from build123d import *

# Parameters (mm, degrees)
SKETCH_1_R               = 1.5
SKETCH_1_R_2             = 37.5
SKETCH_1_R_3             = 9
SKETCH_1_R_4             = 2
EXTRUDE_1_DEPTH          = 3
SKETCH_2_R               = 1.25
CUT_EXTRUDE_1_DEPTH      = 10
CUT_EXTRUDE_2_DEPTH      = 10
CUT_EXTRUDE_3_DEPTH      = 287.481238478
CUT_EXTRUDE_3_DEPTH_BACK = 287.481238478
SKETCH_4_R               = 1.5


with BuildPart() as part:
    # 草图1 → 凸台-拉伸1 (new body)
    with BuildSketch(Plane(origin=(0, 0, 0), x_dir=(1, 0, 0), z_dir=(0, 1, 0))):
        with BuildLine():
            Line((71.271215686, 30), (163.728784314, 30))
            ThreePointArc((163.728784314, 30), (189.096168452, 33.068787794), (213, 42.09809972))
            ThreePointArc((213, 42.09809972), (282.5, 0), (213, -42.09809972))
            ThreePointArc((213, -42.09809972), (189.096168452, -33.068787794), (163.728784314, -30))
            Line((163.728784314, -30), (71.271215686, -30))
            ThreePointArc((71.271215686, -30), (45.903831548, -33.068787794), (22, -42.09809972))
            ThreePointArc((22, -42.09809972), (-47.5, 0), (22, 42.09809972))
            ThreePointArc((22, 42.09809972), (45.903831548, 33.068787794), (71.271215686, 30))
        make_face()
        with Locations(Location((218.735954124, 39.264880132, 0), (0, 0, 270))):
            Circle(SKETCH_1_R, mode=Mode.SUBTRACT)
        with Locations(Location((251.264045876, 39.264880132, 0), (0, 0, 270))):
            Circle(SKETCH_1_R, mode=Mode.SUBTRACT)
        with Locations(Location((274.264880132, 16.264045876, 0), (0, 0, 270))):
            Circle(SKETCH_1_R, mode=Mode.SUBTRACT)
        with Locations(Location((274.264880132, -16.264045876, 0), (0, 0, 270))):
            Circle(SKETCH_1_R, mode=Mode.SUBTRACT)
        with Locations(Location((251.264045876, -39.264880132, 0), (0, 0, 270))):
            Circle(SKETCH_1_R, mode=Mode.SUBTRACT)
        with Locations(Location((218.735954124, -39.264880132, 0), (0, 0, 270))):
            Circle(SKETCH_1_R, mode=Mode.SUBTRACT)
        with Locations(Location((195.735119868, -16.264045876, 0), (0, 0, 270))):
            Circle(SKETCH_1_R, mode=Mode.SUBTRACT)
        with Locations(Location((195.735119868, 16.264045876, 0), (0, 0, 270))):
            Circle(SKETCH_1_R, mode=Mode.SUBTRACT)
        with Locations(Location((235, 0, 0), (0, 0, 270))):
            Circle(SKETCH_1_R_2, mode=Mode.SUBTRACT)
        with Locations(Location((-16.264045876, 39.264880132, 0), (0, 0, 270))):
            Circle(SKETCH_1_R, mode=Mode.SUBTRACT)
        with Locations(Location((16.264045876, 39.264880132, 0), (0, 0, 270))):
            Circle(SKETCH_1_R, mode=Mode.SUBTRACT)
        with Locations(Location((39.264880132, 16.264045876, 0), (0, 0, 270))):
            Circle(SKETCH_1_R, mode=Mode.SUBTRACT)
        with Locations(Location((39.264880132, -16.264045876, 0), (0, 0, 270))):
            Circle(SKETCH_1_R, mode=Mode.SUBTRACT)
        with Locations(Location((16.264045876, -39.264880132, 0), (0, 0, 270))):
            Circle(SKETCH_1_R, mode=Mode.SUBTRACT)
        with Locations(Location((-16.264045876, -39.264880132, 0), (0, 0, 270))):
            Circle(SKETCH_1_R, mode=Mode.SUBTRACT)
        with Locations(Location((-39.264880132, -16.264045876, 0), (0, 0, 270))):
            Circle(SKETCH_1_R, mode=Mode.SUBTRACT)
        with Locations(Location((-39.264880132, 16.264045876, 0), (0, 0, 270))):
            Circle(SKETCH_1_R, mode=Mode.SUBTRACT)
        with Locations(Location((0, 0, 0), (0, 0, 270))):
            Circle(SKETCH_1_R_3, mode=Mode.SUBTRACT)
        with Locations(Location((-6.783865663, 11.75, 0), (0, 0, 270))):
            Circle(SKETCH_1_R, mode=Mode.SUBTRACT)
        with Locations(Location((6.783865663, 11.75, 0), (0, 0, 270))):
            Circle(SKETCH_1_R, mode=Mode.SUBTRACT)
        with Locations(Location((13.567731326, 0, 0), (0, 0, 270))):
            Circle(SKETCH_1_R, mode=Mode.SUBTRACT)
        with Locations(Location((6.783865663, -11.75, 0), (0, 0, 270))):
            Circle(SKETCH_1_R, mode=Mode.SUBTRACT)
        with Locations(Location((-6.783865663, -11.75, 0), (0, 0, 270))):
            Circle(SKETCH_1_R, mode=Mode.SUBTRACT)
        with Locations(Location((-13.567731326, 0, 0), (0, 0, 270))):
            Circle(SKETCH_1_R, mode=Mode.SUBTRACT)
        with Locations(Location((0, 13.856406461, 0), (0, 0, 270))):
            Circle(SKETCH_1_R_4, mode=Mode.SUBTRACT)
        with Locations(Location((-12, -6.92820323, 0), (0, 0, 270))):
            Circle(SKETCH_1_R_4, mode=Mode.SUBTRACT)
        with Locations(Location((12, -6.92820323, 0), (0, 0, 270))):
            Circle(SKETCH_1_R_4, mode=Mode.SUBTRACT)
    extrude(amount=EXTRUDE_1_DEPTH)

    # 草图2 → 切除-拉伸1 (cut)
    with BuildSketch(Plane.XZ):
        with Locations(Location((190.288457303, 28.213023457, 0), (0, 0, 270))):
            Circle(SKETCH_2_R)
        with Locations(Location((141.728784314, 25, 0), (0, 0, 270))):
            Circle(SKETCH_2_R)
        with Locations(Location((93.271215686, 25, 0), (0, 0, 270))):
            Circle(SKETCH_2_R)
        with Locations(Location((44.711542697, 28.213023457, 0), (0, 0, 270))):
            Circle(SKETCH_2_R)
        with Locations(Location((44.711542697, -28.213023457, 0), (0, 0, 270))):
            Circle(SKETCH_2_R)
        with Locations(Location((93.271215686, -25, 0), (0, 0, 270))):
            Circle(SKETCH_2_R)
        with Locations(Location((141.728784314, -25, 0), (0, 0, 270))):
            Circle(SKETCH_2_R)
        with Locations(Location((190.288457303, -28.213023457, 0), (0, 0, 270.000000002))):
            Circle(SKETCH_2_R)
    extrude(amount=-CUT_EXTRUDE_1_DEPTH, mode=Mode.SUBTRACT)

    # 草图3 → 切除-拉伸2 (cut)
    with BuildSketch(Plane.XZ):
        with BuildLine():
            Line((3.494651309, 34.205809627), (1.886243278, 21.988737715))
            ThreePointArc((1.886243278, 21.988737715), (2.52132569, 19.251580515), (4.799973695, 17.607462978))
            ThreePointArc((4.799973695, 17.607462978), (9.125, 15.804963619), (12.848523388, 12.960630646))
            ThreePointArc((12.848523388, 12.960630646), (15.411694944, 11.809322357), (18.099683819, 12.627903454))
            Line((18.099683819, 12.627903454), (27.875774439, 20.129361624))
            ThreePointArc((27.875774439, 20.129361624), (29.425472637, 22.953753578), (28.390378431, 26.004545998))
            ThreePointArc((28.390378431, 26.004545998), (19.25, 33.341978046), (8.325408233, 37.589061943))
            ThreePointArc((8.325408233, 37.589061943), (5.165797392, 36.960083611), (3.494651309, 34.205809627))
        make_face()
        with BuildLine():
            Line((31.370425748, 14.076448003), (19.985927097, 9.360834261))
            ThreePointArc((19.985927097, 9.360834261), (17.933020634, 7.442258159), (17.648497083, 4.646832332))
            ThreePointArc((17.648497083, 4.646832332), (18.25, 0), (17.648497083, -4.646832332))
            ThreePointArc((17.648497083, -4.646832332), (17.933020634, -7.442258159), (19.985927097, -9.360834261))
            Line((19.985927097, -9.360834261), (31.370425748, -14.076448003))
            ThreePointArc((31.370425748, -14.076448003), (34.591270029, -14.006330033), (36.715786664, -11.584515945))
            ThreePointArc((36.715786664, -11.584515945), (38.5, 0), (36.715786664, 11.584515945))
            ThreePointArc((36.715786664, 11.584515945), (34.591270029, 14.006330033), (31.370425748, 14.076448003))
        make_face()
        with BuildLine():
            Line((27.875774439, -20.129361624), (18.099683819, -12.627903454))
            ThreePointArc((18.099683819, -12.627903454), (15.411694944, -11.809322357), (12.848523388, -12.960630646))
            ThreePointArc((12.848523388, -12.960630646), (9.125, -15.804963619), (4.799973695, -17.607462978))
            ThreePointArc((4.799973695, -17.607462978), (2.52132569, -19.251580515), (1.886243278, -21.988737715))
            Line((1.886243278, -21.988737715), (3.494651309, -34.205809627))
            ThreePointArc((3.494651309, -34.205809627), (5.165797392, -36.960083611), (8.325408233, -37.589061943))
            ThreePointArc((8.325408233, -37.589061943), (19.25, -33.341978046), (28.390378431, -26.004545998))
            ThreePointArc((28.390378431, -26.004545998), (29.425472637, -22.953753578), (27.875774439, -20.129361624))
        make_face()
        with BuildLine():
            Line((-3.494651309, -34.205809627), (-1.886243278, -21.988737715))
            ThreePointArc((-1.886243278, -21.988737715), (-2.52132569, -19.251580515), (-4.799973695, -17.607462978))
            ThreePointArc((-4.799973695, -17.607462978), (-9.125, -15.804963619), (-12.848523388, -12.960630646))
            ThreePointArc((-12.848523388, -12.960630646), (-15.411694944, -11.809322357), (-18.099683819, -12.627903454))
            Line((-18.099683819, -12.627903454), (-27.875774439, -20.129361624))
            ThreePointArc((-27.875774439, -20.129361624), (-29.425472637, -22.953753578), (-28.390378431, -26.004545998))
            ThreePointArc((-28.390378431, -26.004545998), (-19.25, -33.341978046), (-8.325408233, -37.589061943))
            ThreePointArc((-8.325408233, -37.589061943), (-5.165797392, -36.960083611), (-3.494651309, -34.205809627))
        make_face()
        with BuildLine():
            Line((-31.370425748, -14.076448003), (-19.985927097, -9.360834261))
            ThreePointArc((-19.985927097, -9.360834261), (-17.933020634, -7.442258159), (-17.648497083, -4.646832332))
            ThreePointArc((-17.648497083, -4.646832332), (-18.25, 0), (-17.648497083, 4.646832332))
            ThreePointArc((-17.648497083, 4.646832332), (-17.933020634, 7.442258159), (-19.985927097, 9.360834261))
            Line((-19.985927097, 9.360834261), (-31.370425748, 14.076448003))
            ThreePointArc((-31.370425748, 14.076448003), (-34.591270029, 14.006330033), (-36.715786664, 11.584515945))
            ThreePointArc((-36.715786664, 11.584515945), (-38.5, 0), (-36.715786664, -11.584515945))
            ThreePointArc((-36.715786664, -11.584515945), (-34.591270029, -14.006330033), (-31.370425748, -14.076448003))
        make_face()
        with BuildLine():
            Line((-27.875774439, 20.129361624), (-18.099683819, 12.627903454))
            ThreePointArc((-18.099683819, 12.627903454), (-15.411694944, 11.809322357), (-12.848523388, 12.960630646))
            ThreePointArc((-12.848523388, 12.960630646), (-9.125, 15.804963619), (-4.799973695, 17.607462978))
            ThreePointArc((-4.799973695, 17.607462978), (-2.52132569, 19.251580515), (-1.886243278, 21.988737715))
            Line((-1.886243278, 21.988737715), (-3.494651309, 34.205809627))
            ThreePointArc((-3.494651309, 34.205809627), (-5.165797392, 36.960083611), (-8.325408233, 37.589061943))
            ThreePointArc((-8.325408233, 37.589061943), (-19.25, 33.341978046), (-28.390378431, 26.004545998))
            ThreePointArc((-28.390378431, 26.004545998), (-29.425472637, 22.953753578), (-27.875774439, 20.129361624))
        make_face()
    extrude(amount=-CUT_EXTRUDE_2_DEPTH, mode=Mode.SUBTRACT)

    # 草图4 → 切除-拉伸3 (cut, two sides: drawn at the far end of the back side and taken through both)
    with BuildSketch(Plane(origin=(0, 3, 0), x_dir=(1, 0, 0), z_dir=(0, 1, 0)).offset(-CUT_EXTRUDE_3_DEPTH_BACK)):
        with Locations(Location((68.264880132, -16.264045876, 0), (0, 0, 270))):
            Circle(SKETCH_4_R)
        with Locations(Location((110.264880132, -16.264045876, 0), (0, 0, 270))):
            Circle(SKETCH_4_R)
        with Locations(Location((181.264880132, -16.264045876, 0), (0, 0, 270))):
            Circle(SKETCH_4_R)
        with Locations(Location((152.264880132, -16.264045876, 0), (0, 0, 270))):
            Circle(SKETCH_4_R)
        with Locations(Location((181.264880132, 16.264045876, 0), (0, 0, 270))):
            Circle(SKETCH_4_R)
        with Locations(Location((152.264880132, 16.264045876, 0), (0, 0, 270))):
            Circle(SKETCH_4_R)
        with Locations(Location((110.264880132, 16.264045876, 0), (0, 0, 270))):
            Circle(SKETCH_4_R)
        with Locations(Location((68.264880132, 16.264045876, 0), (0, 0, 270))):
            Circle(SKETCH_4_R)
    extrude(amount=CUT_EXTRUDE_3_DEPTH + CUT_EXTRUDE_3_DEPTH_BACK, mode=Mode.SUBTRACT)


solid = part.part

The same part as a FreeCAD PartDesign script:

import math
import FreeCAD as App
import Part
import Sketcher

V = App.Vector
Q = App.Units.Quantity

doc = App.newDocument("Part")
body = doc.addObject("PartDesign::Body", "Body")

# Sketch on XZ plane
sketch1 = body.newObject("Sketcher::SketchObject", "Sketch")
sketch1.AttachmentSupport = (doc.getObject("XZ_Plane"), [""])
sketch1.MapMode = "FlatFace"
sketch1.addGeometry([
    Part.LineSegment(V(163.728784, -30, 0), V(71.271216, -30, 0)),  # 0
    Part.ArcOfCircle(Part.Circle(V(71.271216, -136.381034, 0), V(0, 0, 1), 106.381034), math.radians(90), math.radians(117.591069)),  # 1
    Part.ArcOfCircle(Part.Circle(V(0, 0, 0), V(0, 0, 1), 47.5), math.radians(62.408931), math.radians(297.591069)),  # 2
    Part.ArcOfCircle(Part.Circle(V(71.271216, 136.381034, 0), V(0, 0, 1), 106.381034), math.radians(-117.591069), math.radians(-90)),  # 3
    Part.LineSegment(V(71.271216, 30, 0), V(163.728784, 30, 0)),  # 4
    Part.ArcOfCircle(Part.Circle(V(163.728784, 136.381034, 0), V(0, 0, 1), 106.381034), math.radians(-90), math.radians(-62.408931)),  # 5
    Part.ArcOfCircle(Part.Circle(V(235, 0, 0), V(0, 0, 1), 47.5), math.radians(-117.591069), math.radians(117.591069)),  # 6
    Part.ArcOfCircle(Part.Circle(V(163.728784, -136.381034, 0), V(0, 0, 1), 106.381034), math.radians(62.408931), math.radians(90)),  # 7
    Part.Circle(V(251.264046, 39.26488, 0), V(0, 0, 1), 1.5),  # 8
    Part.Circle(V(218.735954, 39.26488, 0), V(0, 0, 1), 1.5),  # 9
    Part.Circle(V(274.26488, 16.264046, 0), V(0, 0, 1), 1.5),  # 10
    Part.Circle(V(195.73512, 16.264046, 0), V(0, 0, 1), 1.5),  # 11
    Part.Circle(V(16.264046, 39.26488, 0), V(0, 0, 1), 1.5),  # 12
    Part.Circle(V(-16.264046, 39.26488, 0), V(0, 0, 1), 1.5),  # 13
    Part.Circle(V(39.26488, 16.264046, 0), V(0, 0, 1), 1.5),  # 14
    Part.Circle(V(6.783866, 11.75, 0), V(0, 0, 1), 1.5),  # 15
    Part.Circle(V(-39.26488, 16.264046, 0), V(0, 0, 1), 1.5),  # 16
    Part.Circle(V(-6.783866, 11.75, 0), V(0, 0, 1), 1.5),  # 17
    Part.Circle(V(12, 6.928203, 0), V(0, 0, 1), 2),  # 18
    Part.Circle(V(-12, 6.928203, 0), V(0, 0, 1), 2),  # 19
    Part.Circle(V(235, 0, 0), V(0, 0, 1), 37.5),  # 20
    Part.Circle(V(274.26488, -16.264046, 0), V(0, 0, 1), 1.5),  # 21
    Part.Circle(V(195.73512, -16.264046, 0), V(0, 0, 1), 1.5),  # 22
    Part.Circle(V(251.264046, -39.26488, 0), V(0, 0, 1), 1.5),  # 23
    Part.Circle(V(218.735954, -39.26488, 0), V(0, 0, 1), 1.5),  # 24
    Part.Circle(V(39.26488, -16.264046, 0), V(0, 0, 1), 1.5),  # 25
    Part.Circle(V(13.567731, 0, 0), V(0, 0, 1), 1.5),  # 26
    Part.Circle(V(0, 0, 0), V(0, 0, 1), 9),  # 27
    Part.Circle(V(-13.567731, 0, 0), V(0, 0, 1), 1.5),  # 28
    Part.Circle(V(6.783866, -11.75, 0), V(0, 0, 1), 1.5),  # 29
    Part.Circle(V(0, -13.856406, 0), V(0, 0, 1), 2),  # 30
    Part.Circle(V(-6.783866, -11.75, 0), V(0, 0, 1), 1.5),  # 31
    Part.Circle(V(-39.26488, -16.264046, 0), V(0, 0, 1), 1.5),  # 32
    Part.Circle(V(16.264046, -39.26488, 0), V(0, 0, 1), 1.5),  # 33
    Part.Circle(V(-16.264046, -39.26488, 0), V(0, 0, 1), 1.5),  # 34
], False)
sketch1.addConstraint([
    Sketcher.Constraint("Tangent", 0, 2, 1, 1),
    Sketcher.Constraint("Tangent", 1, 2, 2, 2),
    Sketcher.Constraint("Tangent", 2, 1, 3, 1),
    Sketcher.Constraint("Tangent", 3, 2, 4, 1),
    Sketcher.Constraint("Tangent", 4, 2, 5, 1),
    Sketcher.Constraint("Tangent", 5, 2, 6, 2),
    Sketcher.Constraint("Tangent", 6, 1, 7, 1),
    Sketcher.Constraint("Tangent", 7, 2, 0, 1),
    Sketcher.Constraint("Horizontal", 0),
    Sketcher.Constraint("Horizontal", 4),
    Sketcher.Constraint("Coincident", 2, 3, -1, 1),
    Sketcher.Constraint("Coincident", 27, 3, -1, 1),
    Sketcher.Constraint("Coincident", 20, 3, 6, 3),
    Sketcher.Constraint("Equal", 1, 3),
    Sketcher.Constraint("Equal", 3, 5),
    Sketcher.Constraint("Equal", 2, 6),
    Sketcher.Constraint("Equal", 5, 7),
    Sketcher.Constraint("Equal", 8, 9),
    Sketcher.Constraint("Equal", 9, 10),
    Sketcher.Constraint("Equal", 10, 11),
    Sketcher.Constraint("Equal", 11, 12),
    Sketcher.Constraint("Equal", 12, 13),
    Sketcher.Constraint("Equal", 13, 14),
    Sketcher.Constraint("Equal", 14, 15),
    Sketcher.Constraint("Equal", 15, 16),
    Sketcher.Constraint("Equal", 16, 17),
    Sketcher.Constraint("Equal", 18, 19),
    Sketcher.Constraint("Equal", 17, 21),
    Sketcher.Constraint("Equal", 21, 22),
    Sketcher.Constraint("Equal", 22, 23),
    Sketcher.Constraint("Equal", 23, 24),
    Sketcher.Constraint("Equal", 24, 25),
    Sketcher.Constraint("Equal", 25, 26),
    Sketcher.Constraint("Equal", 26, 28),
    Sketcher.Constraint("Equal", 28, 29),
    Sketcher.Constraint("Equal", 19, 30),
    Sketcher.Constraint("Equal", 29, 31),
    Sketcher.Constraint("Equal", 31, 32),
    Sketcher.Constraint("Equal", 32, 33),
    Sketcher.Constraint("Equal", 33, 34),
    Sketcher.Constraint("Symmetric", 16, 3, 25, 3, -1, 1),
    Sketcher.Constraint("Symmetric", 26, 3, 28, 3, -1, 1),
    Sketcher.Constraint("Symmetric", 17, 3, 29, 3, -1, 1),
    Sketcher.Constraint("Symmetric", 15, 3, 31, 3, -1, 1),
    Sketcher.Constraint("Symmetric", 14, 3, 32, 3, -1, 1),
    Sketcher.Constraint("Symmetric", 13, 3, 33, 3, -1, 1),
    Sketcher.Constraint("Symmetric", 12, 3, 34, 3, -1, 1),
    Sketcher.Constraint("Symmetric", 12, 3, 13, 3, -2),
    Sketcher.Constraint("Symmetric", 14, 3, 16, 3, -2),
    Sketcher.Constraint("Symmetric", 15, 3, 17, 3, -2),
    Sketcher.Constraint("Symmetric", 18, 3, 19, 3, -2),
    Sketcher.Constraint("Symmetric", 5, 3, 7, 3, -1),
    Sketcher.Constraint("Symmetric", 10, 3, 21, 3, -1),
    Sketcher.Constraint("Symmetric", 11, 3, 22, 3, -1),
    Sketcher.Constraint("Symmetric", 8, 3, 23, 3, -1),
    Sketcher.Constraint("Symmetric", 9, 3, 24, 3, -1),
    Sketcher.Constraint("PointOnObject", 26, 3, -1),
    Sketcher.Constraint("PointOnObject", 30, 3, -2),
    Sketcher.Constraint("Horizontal", 8, 3, 9, 3),
    Sketcher.Constraint("Horizontal", 10, 3, 11, 3),
    Sketcher.Constraint("Horizontal", 9, 3, 12, 3),
    Sketcher.Constraint("Horizontal", 11, 3, 14, 3),
    Sketcher.Constraint("Diameter", 8, Q("3 mm")),
    Sketcher.Constraint("Diameter", 18, Q("4 mm")),
    Sketcher.Constraint("Diameter", 20, Q("75 mm")),
    Sketcher.Constraint("Diameter", 27, Q("18 mm")),
    Sketcher.Constraint("Radius", 2, Q("47.5 mm")),
    Sketcher.Constraint("DistanceX", -1, 1, 6, 3, Q("235 mm")),
    Sketcher.Constraint("DistanceX", -1, 1, 18, 3, Q("12 mm")),
    Sketcher.Constraint("DistanceY", 0, 2, -1, 1, Q("30 mm")),
    Sketcher.Constraint("DistanceY", 29, 3, 15, 3, Q("23.5 mm")),
    Sketcher.Constraint("Radius", 1, Q("106.381034 mm")),
    Sketcher.Constraint("DistanceY", -1, 1, 8, 3, Q("39.26488 mm")),
    Sketcher.Constraint("DistanceX", -1, 1, 10, 3, Q("274.26488 mm")),
    Sketcher.Constraint("DistanceX", -1, 1, 11, 3, Q("195.73512 mm")),
    Sketcher.Constraint("DistanceX", -1, 1, 14, 3, Q("39.26488 mm")),
    Sketcher.Constraint("DistanceX", -1, 1, 26, 3, Q("13.567731 mm")),
    Sketcher.Constraint("DistanceX", 5, 3, 8, 3, Q("87.535262 mm")),
    Sketcher.Constraint("DistanceX", 9, 3, 8, 3, Q("32.528092 mm")),
    Sketcher.Constraint("DistanceY", 7, 3, 10, 3, Q("152.64508 mm")),
    Sketcher.Constraint("DistanceX", 12, 3, 3, 3, Q("55.00717 mm")),
    Sketcher.Constraint("DistanceX", 15, 3, 12, 3, Q("9.48018 mm")),
    Sketcher.Constraint("DistanceY", 25, 3, 18, 3, Q("23.192249 mm")),
    Sketcher.Constraint("DistanceY", 32, 3, 30, 3, Q("2.407639 mm")),
])
pad1 = body.newObject("PartDesign::Pad", "Pad")
pad1.Profile = sketch1
pad1.Length = 3
pad1.Reversed = True

# Sketch on XZ plane
sketch2 = body.newObject("Sketcher::SketchObject", "Sketch001")
sketch2.AttachmentSupport = (doc.getObject("XZ_Plane"), [""])
sketch2.MapMode = "FlatFace"
sketch2.addGeometry([
    Part.Circle(V(190.288457, 28.213023, 0), V(0, 0, 1), 1.25),  # 0
    Part.Circle(V(141.728784, 25, 0), V(0, 0, 1), 1.25),  # 1
    Part.Circle(V(93.271216, 25, 0), V(0, 0, 1), 1.25),  # 2
    Part.Circle(V(44.711543, 28.213023, 0), V(0, 0, 1), 1.25),  # 3
    Part.Circle(V(44.711543, -28.213023, 0), V(0, 0, 1), 1.25),  # 4
    Part.Circle(V(93.271216, -25, 0), V(0, 0, 1), 1.25),  # 5
    Part.Circle(V(141.728784, -25, 0), V(0, 0, 1), 1.25),  # 6
    Part.Circle(V(190.288457, -28.213023, 0), V(0, 0, 1), 1.25),  # 7
], False)
sketch2.addConstraint([
    Sketcher.Constraint("Equal", 0, 1),
    Sketcher.Constraint("Equal", 1, 2),
    Sketcher.Constraint("Equal", 2, 3),
    Sketcher.Constraint("Equal", 3, 4),
    Sketcher.Constraint("Equal", 4, 5),
    Sketcher.Constraint("Equal", 5, 6),
    Sketcher.Constraint("Equal", 6, 7),
    Sketcher.Constraint("Symmetric", 3, 3, 4, 3, -1),
    Sketcher.Constraint("Symmetric", 2, 3, 5, 3, -1),
    Sketcher.Constraint("Symmetric", 1, 3, 6, 3, -1),
    Sketcher.Constraint("Symmetric", 0, 3, 7, 3, -1),
    Sketcher.Constraint("Horizontal", 1, 3, 2, 3),
    Sketcher.Constraint("Horizontal", 0, 3, 3, 3),
    Sketcher.Constraint("Diameter", 0, Q("2.5 mm")),
    Sketcher.Constraint("DistanceY", -1, 1, 1, 3, Q("25 mm")),
    Sketcher.Constraint("DistanceX", 2, 3, 1, 3, Q("48.457569 mm")),
    Sketcher.Constraint("DistanceX", 2, 3, 0, 3, Q("97.017242 mm")),
    Sketcher.Constraint("DistanceX", 3, 3, 1, 3, Q("97.017242 mm")),
    Sketcher.Constraint("DistanceX", -1, 1, 0, 3, Q("190.288457 mm")),
    Sketcher.Constraint("DistanceY", -1, 1, 0, 3, Q("28.213023 mm")),
])
pocket1 = body.newObject("PartDesign::Pocket", "Pocket")
pocket1.Profile = sketch2
pocket1.Length = 10

# Sketch on XZ plane
sketch3 = body.newObject("Sketcher::SketchObject", "Sketch002")
sketch3.AttachmentSupport = (doc.getObject("XZ_Plane"), [""])
sketch3.MapMode = "FlatFace"
sketch3.addGeometry([
    Part.LineSegment(V(3.494651, 34.20581, 0), V(1.886243, 21.988738, 0)),  # 0
    Part.ArcOfCircle(Part.Circle(V(5.852023, 21.466633, 0), V(0, 0, 1), 4), math.radians(172.5), math.radians(254.751126)),  # 1
    Part.ArcOfCircle(Part.Circle(V(0, 0, 0), V(0, 0, 1), 18.25), math.radians(45.248874), math.radians(74.751126)),  # 2
    Part.ArcOfCircle(Part.Circle(V(15.664638, 15.801317, 0), V(0, 0, 1), 4), math.radians(-134.751126), math.radians(-52.5)),  # 3
    Part.LineSegment(V(18.099684, 12.627903, 0), V(27.875774, 20.129362, 0)),  # 4
    Part.ArcOfCircle(Part.Circle(V(25.440729, 23.302775, 0), V(0, 0, 1), 4), math.radians(-52.5), math.radians(42.488542)),  # 5
    Part.ArcOfCircle(Part.Circle(V(0, 0, 0), V(0, 0, 1), 38.5), math.radians(42.488542), math.radians(77.511458)),  # 6
    Part.ArcOfCircle(Part.Circle(V(7.460431, 33.683705, 0), V(0, 0, 1), 4), math.radians(77.511458), math.radians(172.5)),  # 7
    Part.LineSegment(V(31.370426, 14.076448, 0), V(19.985927, 9.360834, 0)),  # 8
    Part.ArcOfCircle(Part.Circle(V(21.516661, 5.665316, 0), V(0, 0, 1), 4), math.radians(112.5), math.radians(194.751126)),  # 9
    Part.ArcOfCircle(Part.Circle(V(0, 0, 0), V(0, 0, 1), 18.25), math.radians(-14.751126), math.radians(14.751126)),  # 10
    Part.ArcOfCircle(Part.Circle(V(21.516661, -5.665316, 0), V(0, 0, 1), 4), math.radians(165.248874), math.radians(247.5)),  # 11
    Part.LineSegment(V(19.985927, -9.360834, 0), V(31.370426, -14.076448, 0)),  # 12
    Part.ArcOfCircle(Part.Circle(V(32.901159, -10.38093, 0), V(0, 0, 1), 4), math.radians(-112.5), math.radians(-17.511458)),  # 13
    Part.ArcOfCircle(Part.Circle(V(0, 0, 0), V(0, 0, 1), 38.5), math.radians(-17.511458), math.radians(17.511458)),  # 14
    Part.ArcOfCircle(Part.Circle(V(32.901159, 10.38093, 0), V(0, 0, 1), 4), math.radians(17.511458), math.radians(112.5)),  # 15
    Part.LineSegment(V(27.875774, -20.129362, 0), V(18.099684, -12.627903, 0)),  # 16
    Part.ArcOfCircle(Part.Circle(V(15.664638, -15.801317, 0), V(0, 0, 1), 4), math.radians(52.5), math.radians(134.751126)),  # 17
    Part.ArcOfCircle(Part.Circle(V(0, 0, 0), V(0, 0, 1), 18.25), math.radians(-74.751126), math.radians(-45.248874)),  # 18
    Part.ArcOfCircle(Part.Circle(V(5.852023, -21.466633, 0), V(0, 0, 1), 4), math.radians(105.248874), math.radians(187.5)),  # 19
    Part.LineSegment(V(1.886243, -21.988738, 0), V(3.494651, -34.20581, 0)),  # 20
    Part.ArcOfCircle(Part.Circle(V(7.460431, -33.683705, 0), V(0, 0, 1), 4), math.radians(-172.5), math.radians(-77.511458)),  # 21
    Part.ArcOfCircle(Part.Circle(V(0, 0, 0), V(0, 0, 1), 38.5), math.radians(-77.511458), math.radians(-42.488542)),  # 22
    Part.ArcOfCircle(Part.Circle(V(25.440729, -23.302775, 0), V(0, 0, 1), 4), math.radians(-42.488542), math.radians(52.5)),  # 23
    Part.LineSegment(V(-3.494651, -34.20581, 0), V(-1.886243, -21.988738, 0)),  # 24
    Part.ArcOfCircle(Part.Circle(V(-5.852023, -21.466633, 0), V(0, 0, 1), 4), math.radians(-7.5), math.radians(74.751126)),  # 25
    Part.ArcOfCircle(Part.Circle(V(0, 0, 0), V(0, 0, 1), 18.25), math.radians(-134.751126), math.radians(-105.248874)),  # 26
    Part.ArcOfCircle(Part.Circle(V(-15.664638, -15.801317, 0), V(0, 0, 1), 4), math.radians(45.248874), math.radians(127.5)),  # 27
    Part.LineSegment(V(-18.099684, -12.627903, 0), V(-27.875774, -20.129362, 0)),  # 28
    Part.ArcOfCircle(Part.Circle(V(-25.440729, -23.302775, 0), V(0, 0, 1), 4), math.radians(127.5), math.radians(222.488542)),  # 29
    Part.ArcOfCircle(Part.Circle(V(0, 0, 0), V(0, 0, 1), 38.5), math.radians(-137.511458), math.radians(-102.488542)),  # 30
    Part.ArcOfCircle(Part.Circle(V(-7.460431, -33.683705, 0), V(0, 0, 1), 4), math.radians(-102.488542), math.radians(-7.5)),  # 31
    Part.LineSegment(V(-31.370426, -14.076448, 0), V(-19.985927, -9.360834, 0)),  # 32
    Part.ArcOfCircle(Part.Circle(V(-21.516661, -5.665316, 0), V(0, 0, 1), 4), math.radians(-67.5), math.radians(14.751126)),  # 33
    Part.ArcOfCircle(Part.Circle(V(0, 0, 0), V(0, 0, 1), 18.25), math.radians(165.248874), math.radians(194.751126)),  # 34
    Part.ArcOfCircle(Part.Circle(V(-21.516661, 5.665316, 0), V(0, 0, 1), 4), math.radians(-14.751126), math.radians(67.5)),  # 35
    Part.LineSegment(V(-19.985927, 9.360834, 0), V(-31.370426, 14.076448, 0)),  # 36
    Part.ArcOfCircle(Part.Circle(V(-32.901159, 10.38093, 0), V(0, 0, 1), 4), math.radians(67.5), math.radians(162.488542)),  # 37
    Part.ArcOfCircle(Part.Circle(V(0, 0, 0), V(0, 0, 1), 38.5), math.radians(162.488542), math.radians(197.511458)),  # 38
    Part.ArcOfCircle(Part.Circle(V(-32.901159, -10.38093, 0), V(0, 0, 1), 4), math.radians(-162.488542), math.radians(-67.5)),  # 39
    Part.LineSegment(V(-27.875774, 20.129362, 0), V(-18.099684, 12.627903, 0)),  # 40
    Part.ArcOfCircle(Part.Circle(V(-15.664638, 15.801317, 0), V(0, 0, 1), 4), math.radians(-127.5), math.radians(-45.248874)),  # 41
    Part.ArcOfCircle(Part.Circle(V(0, 0, 0), V(0, 0, 1), 18.25), math.radians(105.248874), math.radians(134.751126)),  # 42
    Part.ArcOfCircle(Part.Circle(V(-5.852023, 21.466633, 0), V(0, 0, 1), 4), math.radians(-74.751126), math.radians(7.5)),  # 43
    Part.LineSegment(V(-1.886243, 21.988738, 0), V(-3.494651, 34.20581, 0)),  # 44
    Part.ArcOfCircle(Part.Circle(V(-7.460431, 33.683705, 0), V(0, 0, 1), 4), math.radians(7.5), math.radians(102.488542)),  # 45
    Part.ArcOfCircle(Part.Circle(V(0, 0, 0), V(0, 0, 1), 38.5), math.radians(102.488542), math.radians(137.511458)),  # 46
    Part.ArcOfCircle(Part.Circle(V(-25.440729, 23.302775, 0), V(0, 0, 1), 4), math.radians(137.511458), math.radians(232.5)),  # 47
], False)
sketch3.addConstraint([
    Sketcher.Constraint("Tangent", 0, 2, 1, 1),
    Sketcher.Constraint("Tangent", 1, 2, 2, 2),
    Sketcher.Constraint("Tangent", 2, 1, 3, 1),
    Sketcher.Constraint("Tangent", 3, 2, 4, 1),
    Sketcher.Constraint("Tangent", 4, 2, 5, 1),
    Sketcher.Constraint("Tangent", 5, 2, 6, 1),
    Sketcher.Constraint("Tangent", 6, 2, 7, 1),
    Sketcher.Constraint("Tangent", 7, 2, 0, 1),
    Sketcher.Constraint("Tangent", 8, 2, 9, 1),
    Sketcher.Constraint("Tangent", 9, 2, 10, 2),
    Sketcher.Constraint("Tangent", 10, 1, 11, 1),
    Sketcher.Constraint("Tangent", 11, 2, 12, 1),
    Sketcher.Constraint("Tangent", 12, 2, 13, 1),
    Sketcher.Constraint("Tangent", 13, 2, 14, 1),
    Sketcher.Constraint("Tangent", 14, 2, 15, 1),
    Sketcher.Constraint("Tangent", 15, 2, 8, 1),
    Sketcher.Constraint("Tangent", 16, 2, 17, 1),
    Sketcher.Constraint("Tangent", 17, 2, 18, 2),
    Sketcher.Constraint("Tangent", 18, 1, 19, 1),
    Sketcher.Constraint("Tangent", 19, 2, 20, 1),
    Sketcher.Constraint("Tangent", 20, 2, 21, 1),
    Sketcher.Constraint("Tangent", 21, 2, 22, 1),
    Sketcher.Constraint("Tangent", 22, 2, 23, 1),
    Sketcher.Constraint("Tangent", 23, 2, 16, 1),
    Sketcher.Constraint("Tangent", 24, 2, 25, 1),
    Sketcher.Constraint("Tangent", 25, 2, 26, 2),
    Sketcher.Constraint("Tangent", 26, 1, 27, 1),
    Sketcher.Constraint("Tangent", 27, 2, 28, 1),
    Sketcher.Constraint("Tangent", 28, 2, 29, 1),
    Sketcher.Constraint("Tangent", 29, 2, 30, 1),
    Sketcher.Constraint("Tangent", 30, 2, 31, 1),
    Sketcher.Constraint("Tangent", 31, 2, 24, 1),
    Sketcher.Constraint("Tangent", 32, 2, 33, 1),
    Sketcher.Constraint("Tangent", 33, 2, 34, 2),
    Sketcher.Constraint("Tangent", 34, 1, 35, 1),
    Sketcher.Constraint("Tangent", 35, 2, 36, 1),
    Sketcher.Constraint("Tangent", 36, 2, 37, 1),
    Sketcher.Constraint("Tangent", 37, 2, 38, 1),
    Sketcher.Constraint("Tangent", 38, 2, 39, 1),
    Sketcher.Constraint("Tangent", 39, 2, 32, 1),
    Sketcher.Constraint("Tangent", 40, 2, 41, 1),
    Sketcher.Constraint("Tangent", 41, 2, 42, 2),
    Sketcher.Constraint("Tangent", 42, 1, 43, 1),
    Sketcher.Constraint("Tangent", 43, 2, 44, 1),
    Sketcher.Constraint("Tangent", 44, 2, 45, 1),
    Sketcher.Constraint("Tangent", 45, 2, 46, 1),
    Sketcher.Constraint("Tangent", 46, 2, 47, 1),
    Sketcher.Constraint("Tangent", 47, 2, 40, 1),
    Sketcher.Constraint("Coincident", 2, 3, -1, 1),
    Sketcher.Constraint("Coincident", 6, 3, -1, 1),
    Sketcher.Constraint("Coincident", 10, 3, -1, 1),
    Sketcher.Constraint("Coincident", 14, 3, -1, 1),
    Sketcher.Constraint("Coincident", 18, 3, -1, 1),
    Sketcher.Constraint("Coincident", 22, 3, -1, 1),
    Sketcher.Constraint("Coincident", 26, 3, -1, 1),
    Sketcher.Constraint("Coincident", 30, 3, -1, 1),
    Sketcher.Constraint("Coincident", 34, 3, -1, 1),
    Sketcher.Constraint("Coincident", 38, 3, -1, 1),
    Sketcher.Constraint("Coincident", 42, 3, -1, 1),
    Sketcher.Constraint("Coincident", 46, 3, -1, 1),
    Sketcher.Constraint("Equal", 1, 3),
    Sketcher.Constraint("Equal", 3, 5),
    Sketcher.Constraint("Equal", 5, 7),
    Sketcher.Constraint("Equal", 7, 9),
    Sketcher.Constraint("Equal", 2, 10),
    Sketcher.Constraint("Equal", 9, 11),
    Sketcher.Constraint("Equal", 11, 13),
    Sketcher.Constraint("Equal", 6, 14),
    Sketcher.Constraint("Equal", 13, 15),
    Sketcher.Constraint("Equal", 15, 17),
    Sketcher.Constraint("Equal", 10, 18),
    Sketcher.Constraint("Equal", 17, 19),
    Sketcher.Constraint("Equal", 19, 21),
    Sketcher.Constraint("Equal", 14, 22),
    Sketcher.Constraint("Equal", 21, 23),
    Sketcher.Constraint("Equal", 23, 25),
    Sketcher.Constraint("Equal", 18, 26),
    Sketcher.Constraint("Equal", 25, 27),
    Sketcher.Constraint("Equal", 27, 29),
    Sketcher.Constraint("Equal", 22, 30),
    Sketcher.Constraint("Equal", 29, 31),
    Sketcher.Constraint("Equal", 31, 33),
    Sketcher.Constraint("Equal", 26, 34),
    Sketcher.Constraint("Equal", 33, 35),
    Sketcher.Constraint("Equal", 35, 37),
    Sketcher.Constraint("Equal", 30, 38),
    Sketcher.Constraint("Equal", 37, 39),
    Sketcher.Constraint("Equal", 39, 41),
    Sketcher.Constraint("Equal", 34, 42),
    Sketcher.Constraint("Equal", 41, 43),
    Sketcher.Constraint("Equal", 43, 45),
    Sketcher.Constraint("Equal", 38, 46),
    Sketcher.Constraint("Equal", 45, 47),
    Sketcher.Constraint("Symmetric", 0, 2, 24, 2, -1, 1),
    Sketcher.Constraint("Symmetric", 3, 2, 27, 2, -1, 1),
    Sketcher.Constraint("Symmetric", 8, 2, 32, 2, -1, 1),
    Sketcher.Constraint("Symmetric", 11, 2, 35, 2, -1, 1),
    Sketcher.Constraint("Symmetric", 16, 2, 40, 2, -1, 1),
    Sketcher.Constraint("Symmetric", 19, 2, 43, 2, -1, 1),
    Sketcher.Constraint("Symmetric", 19, 2, 24, 2, -2),
    Sketcher.Constraint("Symmetric", 16, 2, 27, 2, -2),
    Sketcher.Constraint("Symmetric", 11, 2, 32, 2, -2),
    Sketcher.Constraint("Equal", 0, 4),
    Sketcher.Constraint("Equal", 4, 8),
    Sketcher.Constraint("Radius", 1, Q("4 mm")),
    Sketcher.Constraint("Radius", 6, Q("38.5 mm")),
    Sketcher.Constraint("Radius", 2, Q("18.25 mm")),
    Sketcher.Constraint("Angle", 0, Q("-97.5 deg")),
    Sketcher.Constraint("Angle", 4, Q("37.5 deg")),
    Sketcher.Constraint("Angle", 8, Q("-157.5 deg")),
    Sketcher.Constraint("DistanceX", -1, 1, 3, 3, Q("15.664638 mm")),
])
pocket2 = body.newObject("PartDesign::Pocket", "Pocket001")
pocket2.Profile = sketch3
pocket2.Length = 10

# Sketch on XZ plane
sketch4 = body.newObject("Sketcher::SketchObject", "Sketch003")
sketch4.AttachmentSupport = (doc.getObject("XZ_Plane"), [""])
sketch4.MapMode = "FlatFace"
sketch4.AttachmentOffset = App.Placement(V(0, 0, -3), App.Rotation())
sketch4.addGeometry([
    Part.Circle(V(68.26488, 16.264046, 0), V(0, 0, 1), 1.5),  # 0
    Part.Circle(V(110.26488, 16.264046, 0), V(0, 0, 1), 1.5),  # 1
    Part.Circle(V(181.26488, 16.264046, 0), V(0, 0, 1), 1.5),  # 2
    Part.Circle(V(152.26488, 16.264046, 0), V(0, 0, 1), 1.5),  # 3
    Part.Circle(V(181.26488, -16.264046, 0), V(0, 0, 1), 1.5),  # 4
    Part.Circle(V(152.26488, -16.264046, 0), V(0, 0, 1), 1.5),  # 5
    Part.Circle(V(110.26488, -16.264046, 0), V(0, 0, 1), 1.5),  # 6
    Part.Circle(V(68.26488, -16.264046, 0), V(0, 0, 1), 1.5),  # 7
], False)
sketch4.addConstraint([
    Sketcher.Constraint("Equal", 0, 1),
    Sketcher.Constraint("Equal", 1, 2),
    Sketcher.Constraint("Equal", 2, 3),
    Sketcher.Constraint("Equal", 3, 4),
    Sketcher.Constraint("Equal", 4, 5),
    Sketcher.Constraint("Equal", 5, 6),
    Sketcher.Constraint("Equal", 6, 7),
    Sketcher.Constraint("Symmetric", 2, 3, 4, 3, -1),
    Sketcher.Constraint("Symmetric", 3, 3, 5, 3, -1),
    Sketcher.Constraint("Symmetric", 1, 3, 6, 3, -1),
    Sketcher.Constraint("Symmetric", 0, 3, 7, 3, -1),
    Sketcher.Constraint("Horizontal", 0, 3, 1, 3),
    Sketcher.Constraint("Horizontal", 1, 3, 2, 3),
    Sketcher.Constraint("Horizontal", 2, 3, 3, 3),
    Sketcher.Constraint("Diameter", 0, Q("3 mm")),
    Sketcher.Constraint("DistanceX", 0, 3, 1, 3, Q("42 mm")),
    Sketcher.Constraint("DistanceX", 1, 3, 2, 3, Q("71 mm")),
    Sketcher.Constraint("DistanceX", 3, 3, 2, 3, Q("29 mm")),
    Sketcher.Constraint("DistanceX", -1, 1, 0, 3, Q("68.26488 mm")),
    Sketcher.Constraint("DistanceY", 4, 3, 2, 3, Q("32.528092 mm")),
])
pocket3 = body.newObject("PartDesign::Pocket", "Pocket002")
pocket3.Profile = sketch4
pocket3.Type = "ThroughAll"
pocket3.Midplane = True

doc.recompute()
